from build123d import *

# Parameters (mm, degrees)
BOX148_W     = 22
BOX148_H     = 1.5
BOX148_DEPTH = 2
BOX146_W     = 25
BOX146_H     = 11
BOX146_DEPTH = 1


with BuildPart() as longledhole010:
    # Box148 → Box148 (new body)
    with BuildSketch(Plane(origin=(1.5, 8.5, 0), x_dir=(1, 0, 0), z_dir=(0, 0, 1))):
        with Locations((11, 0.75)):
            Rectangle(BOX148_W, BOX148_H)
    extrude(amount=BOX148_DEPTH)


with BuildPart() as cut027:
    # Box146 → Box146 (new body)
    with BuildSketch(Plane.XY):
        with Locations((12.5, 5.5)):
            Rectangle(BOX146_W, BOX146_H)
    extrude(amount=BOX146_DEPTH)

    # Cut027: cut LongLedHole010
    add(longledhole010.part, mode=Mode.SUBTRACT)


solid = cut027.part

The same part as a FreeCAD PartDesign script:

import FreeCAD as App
import Part
import Sketcher

doc = App.newDocument("Part")
body = doc.addObject("PartDesign::Body", "Body")

# Sketch on XY plane
sketch1 = doc.addObject("Sketcher::SketchObject", "Sketch")
body.addObject(sketch1)
sketch1.AttachmentSupport = (doc.XY_Plane, [""])
sketch1.MapMode = "FlatFace"
sketch1.addGeometry(Part.LineSegment(App.Vector(1.5, 10, 0), App.Vector(1.5, 8.5, 0)), False)
sketch1.addGeometry(Part.LineSegment(App.Vector(1.5, 8.5, 0), App.Vector(23.5, 8.5, 0)), False)
sketch1.addGeometry(Part.LineSegment(App.Vector(23.5, 8.5, 0), App.Vector(23.5, 10, 0)), False)
sketch1.addGeometry(Part.LineSegment(App.Vector(23.5, 10, 0), App.Vector(1.5, 10, 0)), False)
sketch1.addConstraint(Sketcher.Constraint("Coincident", 0, 2, 1, 1))
sketch1.addConstraint(Sketcher.Constraint("Coincident", 1, 2, 2, 1))
sketch1.addConstraint(Sketcher.Constraint("Coincident", 2, 2, 3, 1))
sketch1.addConstraint(Sketcher.Constraint("Coincident", 3, 2, 0, 1))
sketch1.addConstraint(Sketcher.Constraint("Vertical", 0))
sketch1.addConstraint(Sketcher.Constraint("Horizontal", 1))
sketch1.addConstraint(Sketcher.Constraint("Vertical", 2))
sketch1.addConstraint(Sketcher.Constraint("Horizontal", 3))
sketch1.addConstraint(Sketcher.Constraint("DistanceX", 1, 1, 1, 2, 22.0))
sketch1.addConstraint(Sketcher.Constraint("DistanceY", 0, 2, 0, 1, 1.5))
sketch1.addConstraint(Sketcher.Constraint("DistanceY", -1, 1, 2, 2, 10.0))
sketch1.addConstraint(Sketcher.Constraint("DistanceX", -1, 1, 0, 2, 1.5))
pad1 = doc.addObject("PartDesign::Pad", "Pad")
body.addObject(pad1)
pad1.Profile = sketch1
pad1.Length = 2
body2 = doc.addObject("PartDesign::Body", "Body001")

# Sketch on XY plane
sketch2 = doc.addObject("Sketcher::SketchObject", "Sketch001")
body2.addObject(sketch2)
sketch2.AttachmentSupport = (doc.getObject("XY_Plane001"), [""])
sketch2.MapMode = "FlatFace"
sketch2.addGeometry(Part.LineSegment(App.Vector(0, 11, 0), App.Vector(0, 0, 0)), False)
sketch2.addGeometry(Part.LineSegment(App.Vector(0, 0, 0), App.Vector(25, 0, 0)), False)
sketch2.addGeometry(Part.LineSegment(App.Vector(25, 0, 0), App.Vector(25, 11, 0)), False)
sketch2.addGeometry(Part.LineSegment(App.Vector(25, 11, 0), App.Vector(0, 11, 0)), False)
sketch2.addConstraint(Sketcher.Constraint("Coincident", 0, 2, 1, 1))
sketch2.addConstraint(Sketcher.Constraint("Coincident", 1, 2, 2, 1))
sketch2.addConstraint(Sketcher.Constraint("Coincident", 2, 2, 3, 1))
sketch2.addConstraint(Sketcher.Constraint("Coincident", 3, 2, 0, 1))
sketch2.addConstraint(Sketcher.Constraint("Vertical", 0))
sketch2.addConstraint(Sketcher.Constraint("Horizontal", 1))
sketch2.addConstraint(Sketcher.Constraint("Vertical", 2))
sketch2.addConstraint(Sketcher.Constraint("Horizontal", 3))
sketch2.addConstraint(Sketcher.Constraint("Coincident", 0, 2, -1, 1))
sketch2.addConstraint(Sketcher.Constraint("DistanceX", 1, 1, 1, 2, 25.0))
sketch2.addConstraint(Sketcher.Constraint("DistanceY", 0, 2, 0, 1, 11.0))
pad2 = doc.addObject("PartDesign::Pad", "Pad001")
body2.addObject(pad2)
pad2.Profile = sketch2
pad2.Length = 1
doc.recompute()

boolean = doc.addObject("PartDesign::Boolean", "Boolean")
body2.addObject(boolean)
boolean.Type = "Cut"
boolean.addObjects([body])

doc.recompute()
